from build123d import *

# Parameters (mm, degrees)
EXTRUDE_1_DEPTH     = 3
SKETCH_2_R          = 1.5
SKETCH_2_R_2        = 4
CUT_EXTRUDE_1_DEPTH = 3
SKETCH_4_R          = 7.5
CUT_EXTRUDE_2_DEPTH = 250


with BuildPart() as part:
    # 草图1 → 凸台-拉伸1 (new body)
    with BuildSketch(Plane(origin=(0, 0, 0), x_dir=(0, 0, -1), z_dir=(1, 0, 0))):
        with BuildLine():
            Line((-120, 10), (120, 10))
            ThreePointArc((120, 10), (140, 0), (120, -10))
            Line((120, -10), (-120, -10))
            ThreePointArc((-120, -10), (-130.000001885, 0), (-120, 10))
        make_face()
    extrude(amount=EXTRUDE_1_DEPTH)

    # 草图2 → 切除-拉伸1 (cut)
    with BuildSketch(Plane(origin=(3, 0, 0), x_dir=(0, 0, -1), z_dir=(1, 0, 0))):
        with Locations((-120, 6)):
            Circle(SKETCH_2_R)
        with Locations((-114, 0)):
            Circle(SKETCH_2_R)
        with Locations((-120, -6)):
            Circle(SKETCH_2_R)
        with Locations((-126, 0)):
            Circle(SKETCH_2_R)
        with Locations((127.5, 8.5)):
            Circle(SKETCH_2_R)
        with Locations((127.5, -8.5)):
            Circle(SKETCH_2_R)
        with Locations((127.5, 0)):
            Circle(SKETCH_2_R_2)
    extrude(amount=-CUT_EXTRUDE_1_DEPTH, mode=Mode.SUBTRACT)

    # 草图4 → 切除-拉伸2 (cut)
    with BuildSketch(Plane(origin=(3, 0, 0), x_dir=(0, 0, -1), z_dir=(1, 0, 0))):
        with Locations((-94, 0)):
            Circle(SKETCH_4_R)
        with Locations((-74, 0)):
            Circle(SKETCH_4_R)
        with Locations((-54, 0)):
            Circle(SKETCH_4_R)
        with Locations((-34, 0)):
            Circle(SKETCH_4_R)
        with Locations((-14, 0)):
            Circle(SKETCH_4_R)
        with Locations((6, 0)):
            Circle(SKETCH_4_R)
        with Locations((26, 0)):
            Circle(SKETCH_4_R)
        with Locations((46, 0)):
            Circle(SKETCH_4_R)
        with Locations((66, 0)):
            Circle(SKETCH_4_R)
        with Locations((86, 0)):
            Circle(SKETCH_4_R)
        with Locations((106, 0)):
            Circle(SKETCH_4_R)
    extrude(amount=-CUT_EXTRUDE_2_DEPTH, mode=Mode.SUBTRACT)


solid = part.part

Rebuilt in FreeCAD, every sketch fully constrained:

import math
import FreeCAD as App
import Part
import Sketcher
from FreeCAD import Vector
Q = App.Units.Quantity

doc = App.newDocument("Part")
body = doc.addObject("PartDesign::Body", "Body")

# Sketch on YZ plane
sketch1 = body.newObject("Sketcher::SketchObject", "Sketch")
sketch1.AttachmentSupport = (doc.getObject("YZ_Plane"), [""])
sketch1.MapMode = "FlatFace"
sketch1.addGeometry([
    Part.LineSegment(Vector(10, -120, 0), Vector(10, 120, 0)),
    Part.ArcOfCircle(Part.Circle(Vector(0, 120, 0), Vector(0, 0, 1), 10), math.radians(0), math.radians(180)),
    Part.LineSegment(Vector(-10, 120, 0), Vector(-10, -120, 0)),
    Part.ArcOfCircle(Part.Circle(Vector(0, -128, 0), Vector(0, 0, 1), 12), math.radians(143), math.radians(397)),
], False)
sketch1.addConstraint([
    Sketcher.Constraint("Tangent", 0, 2, 1, 1),
    Sketcher.Constraint("Tangent", 1, 2, 2, 1),
    Sketcher.Constraint("Coincident", 2, 2, 3, 1),
    Sketcher.Constraint("Coincident", 3, 2, 0, 1),
    Sketcher.Constraint("Vertical", 0),
    Sketcher.Constraint("Vertical", 2),
    Sketcher.Constraint("Symmetric", 0, 2, 2, 2, -1, 1),
    Sketcher.Constraint("PointOnObject", 3, 3, -2),
    Sketcher.Constraint("Radius", 1, Q("10 mm")),
    Sketcher.Constraint("Radius", 3, Q("12.5 mm")),
    Sketcher.Constraint("DistanceY", 0, 1, 0, 2, Q("240 mm")),
])
pad1 = body.newObject("PartDesign::Pad", "Pad")
pad1.Profile = sketch1
pad1.Length = 3

# Sketch on YZ plane
sketch2 = body.newObject("Sketcher::SketchObject", "Sketch001")
sketch2.AttachmentSupport = (doc.getObject("YZ_Plane"), [""])
sketch2.MapMode = "FlatFace"
sketch2.AttachmentOffset = App.Placement(Vector(0, 0, 3), App.Rotation())
sketch2.addGeometry([
    Part.Circle(Vector(6, 120, 0), Vector(0, 0, 1), 1.5),  # 0
    Part.Circle(Vector(0, 114, 0), Vector(0, 0, 1), 1.5),  # 1
    Part.Circle(Vector(-6, 120, 0), Vector(0, 0, 1), 1.5),  # 2
    Part.Circle(Vector(0, 126, 0), Vector(0, 0, 1), 1.5),  # 3
    Part.Circle(Vector(8.5, -127.5, 0), Vector(0, 0, 1), 1.5),  # 4
    Part.Circle(Vector(-8.5, -127.5, 0), Vector(0, 0, 1), 1.5),  # 5
    Part.Circle(Vector(0, -127.5, 0), Vector(0, 0, 1), 4),  # 6
], False)
sketch2.addConstraint([
    Sketcher.Constraint("Equal", 0, 1),
    Sketcher.Constraint("Equal", 1, 2),
    Sketcher.Constraint("Equal", 2, 3),
    Sketcher.Constraint("Equal", 3, 4),
    Sketcher.Constraint("Equal", 4, 5),
    Sketcher.Constraint("Symmetric", 0, 3, 2, 3, -2),
    Sketcher.Constraint("Symmetric", 4, 3, 5, 3, -2),
    Sketcher.Constraint("PointOnObject", 1, 3, -2),
    Sketcher.Constraint("PointOnObject", 3, 3, -2),
    Sketcher.Constraint("PointOnObject", 6, 3, -2),
    Sketcher.Constraint("Horizontal", 5, 3, 6, 3),
    Sketcher.Constraint("Diameter", 0, Q("3 mm")),
    Sketcher.Constraint("Diameter", 6, Q("8 mm")),
    Sketcher.Constraint("DistanceX", -1, 1, 0, 3, Q("6 mm")),
    Sketcher.Constraint("DistanceY", -1, 1, 0, 3, Q("120 mm")),
    Sketcher.Constraint("DistanceY", -1, 1, 1, 3, Q("114 mm")),
    Sketcher.Constraint("DistanceY", -1, 1, 3, 3, Q("126 mm")),
    Sketcher.Constraint("DistanceX", 5, 3, 4, 3, Q("17 mm")),
    Sketcher.Constraint("DistanceY", 4, 3, -1, 1, Q("127.5 mm")),
])
pocket1 = body.newObject("PartDesign::Pocket", "Pocket")
pocket1.Profile = sketch2
pocket1.Length = 3

# Sketch on YZ plane
sketch3 = body.newObject("Sketcher::SketchObject", "Sketch002")
sketch3.AttachmentSupport = (doc.getObject("YZ_Plane"), [""])
sketch3.MapMode = "FlatFace"
sketch3.AttachmentOffset = App.Placement(Vector(0, 0, 3), App.Rotation())
sketch3.addGeometry([
    Part.Circle(Vector(0, 94, 0), Vector(0, 0, 1), 8),  # 0
    Part.Circle(Vector(0, 74, 0), Vector(0, 0, 1), 8),  # 1
    Part.Circle(Vector(0, 54, 0), Vector(0, 0, 1), 8),  # 2
    Part.Circle(Vector(0, 34, 0), Vector(0, 0, 1), 8),  # 3
    Part.Circle(Vector(0, 14, 0), Vector(0, 0, 1), 8),  # 4
    Part.Circle(Vector(0, -6, 0), Vector(0, 0, 1), 8),  # 5
    Part.Circle(Vector(0, -26, 0), Vector(0, 0, 1), 8),  # 6
    Part.Circle(Vector(0, -46, 0), Vector(0, 0, 1), 8),  # 7
    Part.Circle(Vector(0, -66, 0), Vector(0, 0, 1), 8),  # 8
    Part.Circle(Vector(0, -86, 0), Vector(0, 0, 1), 8),  # 9
    Part.Circle(Vector(0, -106, 0), Vector(0, 0, 1), 8),  # 10
], False)
sketch3.addConstraint([
    Sketcher.Constraint("Equal", 0, 1),
    Sketcher.Constraint("Equal", 1, 2),
    Sketcher.Constraint("Equal", 2, 3),
    Sketcher.Constraint("Equal", 3, 4),
    Sketcher.Constraint("Equal", 4, 5),
    Sketcher.Constraint("Equal", 5, 6),
    Sketcher.Constraint("Equal", 6, 7),
    Sketcher.Constraint("Equal", 7, 8),
    Sketcher.Constraint("Equal", 8, 9),
    Sketcher.Constraint("Equal", 9, 10),
    Sketcher.Constraint("PointOnObject", 0, 3, -2),
    Sketcher.Constraint("PointOnObject", 1, 3, -2),
    Sketcher.Constraint("PointOnObject", 2, 3, -2),
    Sketcher.Constraint("PointOnObject", 3, 3, -2),
    Sketcher.Constraint("PointOnObject", 4, 3, -2),
    Sketcher.Constraint("PointOnObject", 5, 3, -2),
    Sketcher.Constraint("PointOnObject", 6, 3, -2),
    Sketcher.Constraint("PointOnObject", 7, 3, -2),
    Sketcher.Constraint("PointOnObject", 8, 3, -2),
    Sketcher.Constraint("PointOnObject", 9, 3, -2),
    Sketcher.Constraint("PointOnObject", 10, 3, -2),
    Sketcher.Constraint("Diameter", 0, Q("15 mm")),
    Sketcher.Constraint("DistanceY", -1, 1, 0, 3, Q("94 mm")),
    Sketcher.Constraint("DistanceY", -1, 1, 1, 3, Q("74 mm")),
    Sketcher.Constraint("DistanceY", -1, 1, 2, 3, Q("54 mm")),
    Sketcher.Constraint("DistanceY", -1, 1, 3, 3, Q("34 mm")),
    Sketcher.Constraint("DistanceY", -1, 1, 4, 3, Q("14 mm")),
    Sketcher.Constraint("DistanceY", 5, 3, -1, 1, Q("6 mm")),
    Sketcher.Constraint("DistanceY", 6, 3, -1, 1, Q("26 mm")),
    Sketcher.Constraint("DistanceY", 7, 3, -1, 1, Q("46 mm")),
    Sketcher.Constraint("DistanceY", 8, 3, -1, 1, Q("66 mm")),
    Sketcher.Constraint("DistanceY", 9, 3, -1, 1, Q("86 mm")),
    Sketcher.Constraint("DistanceY", 10, 3, -1, 1, Q("106 mm")),
])
pocket2 = body.newObject("PartDesign::Pocket", "Pocket001")
pocket2.Profile = sketch3
pocket2.Length = 250

doc.recompute()
